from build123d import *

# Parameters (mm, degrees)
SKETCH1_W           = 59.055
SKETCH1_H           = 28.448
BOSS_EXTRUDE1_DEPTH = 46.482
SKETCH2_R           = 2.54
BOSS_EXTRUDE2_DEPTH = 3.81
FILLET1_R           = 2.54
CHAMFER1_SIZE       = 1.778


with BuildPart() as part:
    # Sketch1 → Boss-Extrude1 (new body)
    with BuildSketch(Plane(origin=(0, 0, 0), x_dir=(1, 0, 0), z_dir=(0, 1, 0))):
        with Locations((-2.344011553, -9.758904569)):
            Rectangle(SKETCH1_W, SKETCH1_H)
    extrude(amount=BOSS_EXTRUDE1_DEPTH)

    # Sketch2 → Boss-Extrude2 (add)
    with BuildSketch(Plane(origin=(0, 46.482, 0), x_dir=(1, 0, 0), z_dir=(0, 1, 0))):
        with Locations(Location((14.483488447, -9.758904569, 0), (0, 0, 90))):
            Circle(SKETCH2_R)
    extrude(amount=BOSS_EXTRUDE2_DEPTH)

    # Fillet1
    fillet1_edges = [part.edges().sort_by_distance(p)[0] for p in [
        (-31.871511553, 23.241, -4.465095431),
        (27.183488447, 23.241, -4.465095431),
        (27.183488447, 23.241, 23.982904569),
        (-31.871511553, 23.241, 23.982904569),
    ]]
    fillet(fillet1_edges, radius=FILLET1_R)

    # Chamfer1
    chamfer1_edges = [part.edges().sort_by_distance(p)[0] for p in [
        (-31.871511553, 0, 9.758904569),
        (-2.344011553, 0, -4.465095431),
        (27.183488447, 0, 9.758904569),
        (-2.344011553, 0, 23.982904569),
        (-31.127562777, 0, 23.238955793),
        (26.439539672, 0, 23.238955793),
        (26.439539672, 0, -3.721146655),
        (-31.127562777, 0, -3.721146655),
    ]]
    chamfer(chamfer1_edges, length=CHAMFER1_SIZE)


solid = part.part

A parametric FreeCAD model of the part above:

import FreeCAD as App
import Part
import Sketcher

V = App.Vector
Q = App.Units.Quantity


def edges_at(feature, points):
    """Names of the edges that pass closest to the given points."""
    edges = feature.Shape.Edges
    near = lambda p: min(range(len(edges)), key=lambda i: edges[i].distToShape(Part.Vertex(*p))[0])
    return sorted({f"Edge{near(p) + 1}" for p in points})

doc = App.newDocument("Part")
params = doc.addObject("Spreadsheet::Sheet", "Params")
for row, (alias, value) in enumerate([
    ("sketch1_height", "1.12 in"),
    ("sketch1_width", "2.325 in"),
    ("pad1_length", "1.83 in"),
    ("sketch2_diameter", "0.2 in"),
    ("pad2_length", "0.15 in"),
    ("fillet_radius", "0.1 in"),
    ("chamfer_size", "0.07 in"),
], start=1):
    params.set(f"A{row}", alias)
    params.set(f"B{row}", "=" + value)
    params.setAlias(f"B{row}", alias)

body = doc.addObject("PartDesign::Body", "Body")

# Sketch on XZ plane
sketch1 = doc.addObject("Sketcher::SketchObject", "Sketch")
body.addObject(sketch1)
sketch1.AttachmentSupport = (doc.XZ_Plane, [""])
sketch1.MapMode = "FlatFace"
sketch1.addGeometry(Part.LineSegment(V(-31.871512, -4.465095, 0), V(-31.871512, 23.982905, 0)), False)
sketch1.addGeometry(Part.LineSegment(V(-31.871512, 23.982905, 0), V(27.183488, 23.982905, 0)), False)
sketch1.addGeometry(Part.LineSegment(V(27.183488, 23.982905, 0), V(27.183488, -4.465095, 0)), False)
sketch1.addGeometry(Part.LineSegment(V(27.183488, -4.465095, 0), V(-31.871512, -4.465095, 0)), False)
sketch1.addConstraint(Sketcher.Constraint("Coincident", 0, 2, 1, 1))
sketch1.addConstraint(Sketcher.Constraint("Coincident", 1, 2, 2, 1))
sketch1.addConstraint(Sketcher.Constraint("Coincident", 2, 2, 3, 1))
sketch1.addConstraint(Sketcher.Constraint("Coincident", 3, 2, 0, 1))
sketch1.addConstraint(Sketcher.Constraint("Vertical", 0))
sketch1.addConstraint(Sketcher.Constraint("Horizontal", 1))
sketch1.addConstraint(Sketcher.Constraint("Vertical", 2))
sketch1.addConstraint(Sketcher.Constraint("Horizontal", 3))
sketch1.addConstraint(Sketcher.Constraint("DistanceY", 0, 1, 0, 2, Q("1.12 in")))
sketch1.addConstraint(Sketcher.Constraint("DistanceX", 1, 1, 1, 2, Q("2.325 in")))
sketch1.addConstraint(Sketcher.Constraint("DistanceX", 0, 2, -1, 1, 31.871512))
sketch1.addConstraint(Sketcher.Constraint("DistanceY", -1, 1, 0, 2, 23.982905))
sketch1.setExpression("Constraints[8]", "Params.sketch1_height")
sketch1.setExpression("Constraints[9]", "Params.sketch1_width")
pad1 = doc.addObject("PartDesign::Pad", "Pad")
body.addObject(pad1)
pad1.Profile = sketch1
pad1.setExpression("Length", "Params.pad1_length")
pad1.Reversed = True

# Sketch on XZ plane
sketch2 = doc.addObject("Sketcher::SketchObject", "Sketch001")
body.addObject(sketch2)
sketch2.AttachmentSupport = (doc.XZ_Plane, [""])
sketch2.MapMode = "FlatFace"
sketch2.AttachmentOffset = App.Placement(V(0, 0, -1.83 * 25.4), App.Rotation())
sketch2.addGeometry(Part.Circle(V(14.483488, 9.758905, 0), V(0, 0, 1), 2.54), False)
sketch2.addConstraint(Sketcher.Constraint("Diameter", 0, Q("0.2 in")))
sketch2.addConstraint(Sketcher.Constraint("DistanceX", -1, 1, 0, 3, 14.483488))
sketch2.addConstraint(Sketcher.Constraint("DistanceY", -1, 1, 0, 3, 9.758905))
sketch2.setExpression("Constraints[0]", "Params.sketch2_diameter")
pad2 = doc.addObject("PartDesign::Pad", "Pad001")
body.addObject(pad2)
pad2.Profile = sketch2
pad2.setExpression("Length", "Params.pad2_length")
pad2.Reversed = True
doc.recompute()

fillet = doc.addObject("PartDesign::Fillet", "Fillet")
body.addObject(fillet)
fillet.Base = (pad2, edges_at(pad2, [
    (-31.872, 23.241, -4.465),
    (27.183, 23.241, -4.465),
    (27.183, 23.241, 23.983),
    (-31.872, 23.241, 23.983),
]))
fillet.setExpression("Radius", "Params.fillet_radius")
doc.recompute()

chamfer = doc.addObject("PartDesign::Chamfer", "Chamfer")
body.addObject(chamfer)
chamfer.Base = (fillet, edges_at(fillet, [
    (-31.872, 0, 9.759),
    (-2.344, 0, -4.465),
    (27.183, 0, 9.759),
    (-2.344, 0, 23.983),
    (-31.128, 0, 23.239),
    (26.44, 0, 23.239),
    (26.44, 0, -3.721),
    (-31.128, 0, -3.721),
]))
chamfer.setExpression("Size", "Params.chamfer_size")

doc.recompute()
